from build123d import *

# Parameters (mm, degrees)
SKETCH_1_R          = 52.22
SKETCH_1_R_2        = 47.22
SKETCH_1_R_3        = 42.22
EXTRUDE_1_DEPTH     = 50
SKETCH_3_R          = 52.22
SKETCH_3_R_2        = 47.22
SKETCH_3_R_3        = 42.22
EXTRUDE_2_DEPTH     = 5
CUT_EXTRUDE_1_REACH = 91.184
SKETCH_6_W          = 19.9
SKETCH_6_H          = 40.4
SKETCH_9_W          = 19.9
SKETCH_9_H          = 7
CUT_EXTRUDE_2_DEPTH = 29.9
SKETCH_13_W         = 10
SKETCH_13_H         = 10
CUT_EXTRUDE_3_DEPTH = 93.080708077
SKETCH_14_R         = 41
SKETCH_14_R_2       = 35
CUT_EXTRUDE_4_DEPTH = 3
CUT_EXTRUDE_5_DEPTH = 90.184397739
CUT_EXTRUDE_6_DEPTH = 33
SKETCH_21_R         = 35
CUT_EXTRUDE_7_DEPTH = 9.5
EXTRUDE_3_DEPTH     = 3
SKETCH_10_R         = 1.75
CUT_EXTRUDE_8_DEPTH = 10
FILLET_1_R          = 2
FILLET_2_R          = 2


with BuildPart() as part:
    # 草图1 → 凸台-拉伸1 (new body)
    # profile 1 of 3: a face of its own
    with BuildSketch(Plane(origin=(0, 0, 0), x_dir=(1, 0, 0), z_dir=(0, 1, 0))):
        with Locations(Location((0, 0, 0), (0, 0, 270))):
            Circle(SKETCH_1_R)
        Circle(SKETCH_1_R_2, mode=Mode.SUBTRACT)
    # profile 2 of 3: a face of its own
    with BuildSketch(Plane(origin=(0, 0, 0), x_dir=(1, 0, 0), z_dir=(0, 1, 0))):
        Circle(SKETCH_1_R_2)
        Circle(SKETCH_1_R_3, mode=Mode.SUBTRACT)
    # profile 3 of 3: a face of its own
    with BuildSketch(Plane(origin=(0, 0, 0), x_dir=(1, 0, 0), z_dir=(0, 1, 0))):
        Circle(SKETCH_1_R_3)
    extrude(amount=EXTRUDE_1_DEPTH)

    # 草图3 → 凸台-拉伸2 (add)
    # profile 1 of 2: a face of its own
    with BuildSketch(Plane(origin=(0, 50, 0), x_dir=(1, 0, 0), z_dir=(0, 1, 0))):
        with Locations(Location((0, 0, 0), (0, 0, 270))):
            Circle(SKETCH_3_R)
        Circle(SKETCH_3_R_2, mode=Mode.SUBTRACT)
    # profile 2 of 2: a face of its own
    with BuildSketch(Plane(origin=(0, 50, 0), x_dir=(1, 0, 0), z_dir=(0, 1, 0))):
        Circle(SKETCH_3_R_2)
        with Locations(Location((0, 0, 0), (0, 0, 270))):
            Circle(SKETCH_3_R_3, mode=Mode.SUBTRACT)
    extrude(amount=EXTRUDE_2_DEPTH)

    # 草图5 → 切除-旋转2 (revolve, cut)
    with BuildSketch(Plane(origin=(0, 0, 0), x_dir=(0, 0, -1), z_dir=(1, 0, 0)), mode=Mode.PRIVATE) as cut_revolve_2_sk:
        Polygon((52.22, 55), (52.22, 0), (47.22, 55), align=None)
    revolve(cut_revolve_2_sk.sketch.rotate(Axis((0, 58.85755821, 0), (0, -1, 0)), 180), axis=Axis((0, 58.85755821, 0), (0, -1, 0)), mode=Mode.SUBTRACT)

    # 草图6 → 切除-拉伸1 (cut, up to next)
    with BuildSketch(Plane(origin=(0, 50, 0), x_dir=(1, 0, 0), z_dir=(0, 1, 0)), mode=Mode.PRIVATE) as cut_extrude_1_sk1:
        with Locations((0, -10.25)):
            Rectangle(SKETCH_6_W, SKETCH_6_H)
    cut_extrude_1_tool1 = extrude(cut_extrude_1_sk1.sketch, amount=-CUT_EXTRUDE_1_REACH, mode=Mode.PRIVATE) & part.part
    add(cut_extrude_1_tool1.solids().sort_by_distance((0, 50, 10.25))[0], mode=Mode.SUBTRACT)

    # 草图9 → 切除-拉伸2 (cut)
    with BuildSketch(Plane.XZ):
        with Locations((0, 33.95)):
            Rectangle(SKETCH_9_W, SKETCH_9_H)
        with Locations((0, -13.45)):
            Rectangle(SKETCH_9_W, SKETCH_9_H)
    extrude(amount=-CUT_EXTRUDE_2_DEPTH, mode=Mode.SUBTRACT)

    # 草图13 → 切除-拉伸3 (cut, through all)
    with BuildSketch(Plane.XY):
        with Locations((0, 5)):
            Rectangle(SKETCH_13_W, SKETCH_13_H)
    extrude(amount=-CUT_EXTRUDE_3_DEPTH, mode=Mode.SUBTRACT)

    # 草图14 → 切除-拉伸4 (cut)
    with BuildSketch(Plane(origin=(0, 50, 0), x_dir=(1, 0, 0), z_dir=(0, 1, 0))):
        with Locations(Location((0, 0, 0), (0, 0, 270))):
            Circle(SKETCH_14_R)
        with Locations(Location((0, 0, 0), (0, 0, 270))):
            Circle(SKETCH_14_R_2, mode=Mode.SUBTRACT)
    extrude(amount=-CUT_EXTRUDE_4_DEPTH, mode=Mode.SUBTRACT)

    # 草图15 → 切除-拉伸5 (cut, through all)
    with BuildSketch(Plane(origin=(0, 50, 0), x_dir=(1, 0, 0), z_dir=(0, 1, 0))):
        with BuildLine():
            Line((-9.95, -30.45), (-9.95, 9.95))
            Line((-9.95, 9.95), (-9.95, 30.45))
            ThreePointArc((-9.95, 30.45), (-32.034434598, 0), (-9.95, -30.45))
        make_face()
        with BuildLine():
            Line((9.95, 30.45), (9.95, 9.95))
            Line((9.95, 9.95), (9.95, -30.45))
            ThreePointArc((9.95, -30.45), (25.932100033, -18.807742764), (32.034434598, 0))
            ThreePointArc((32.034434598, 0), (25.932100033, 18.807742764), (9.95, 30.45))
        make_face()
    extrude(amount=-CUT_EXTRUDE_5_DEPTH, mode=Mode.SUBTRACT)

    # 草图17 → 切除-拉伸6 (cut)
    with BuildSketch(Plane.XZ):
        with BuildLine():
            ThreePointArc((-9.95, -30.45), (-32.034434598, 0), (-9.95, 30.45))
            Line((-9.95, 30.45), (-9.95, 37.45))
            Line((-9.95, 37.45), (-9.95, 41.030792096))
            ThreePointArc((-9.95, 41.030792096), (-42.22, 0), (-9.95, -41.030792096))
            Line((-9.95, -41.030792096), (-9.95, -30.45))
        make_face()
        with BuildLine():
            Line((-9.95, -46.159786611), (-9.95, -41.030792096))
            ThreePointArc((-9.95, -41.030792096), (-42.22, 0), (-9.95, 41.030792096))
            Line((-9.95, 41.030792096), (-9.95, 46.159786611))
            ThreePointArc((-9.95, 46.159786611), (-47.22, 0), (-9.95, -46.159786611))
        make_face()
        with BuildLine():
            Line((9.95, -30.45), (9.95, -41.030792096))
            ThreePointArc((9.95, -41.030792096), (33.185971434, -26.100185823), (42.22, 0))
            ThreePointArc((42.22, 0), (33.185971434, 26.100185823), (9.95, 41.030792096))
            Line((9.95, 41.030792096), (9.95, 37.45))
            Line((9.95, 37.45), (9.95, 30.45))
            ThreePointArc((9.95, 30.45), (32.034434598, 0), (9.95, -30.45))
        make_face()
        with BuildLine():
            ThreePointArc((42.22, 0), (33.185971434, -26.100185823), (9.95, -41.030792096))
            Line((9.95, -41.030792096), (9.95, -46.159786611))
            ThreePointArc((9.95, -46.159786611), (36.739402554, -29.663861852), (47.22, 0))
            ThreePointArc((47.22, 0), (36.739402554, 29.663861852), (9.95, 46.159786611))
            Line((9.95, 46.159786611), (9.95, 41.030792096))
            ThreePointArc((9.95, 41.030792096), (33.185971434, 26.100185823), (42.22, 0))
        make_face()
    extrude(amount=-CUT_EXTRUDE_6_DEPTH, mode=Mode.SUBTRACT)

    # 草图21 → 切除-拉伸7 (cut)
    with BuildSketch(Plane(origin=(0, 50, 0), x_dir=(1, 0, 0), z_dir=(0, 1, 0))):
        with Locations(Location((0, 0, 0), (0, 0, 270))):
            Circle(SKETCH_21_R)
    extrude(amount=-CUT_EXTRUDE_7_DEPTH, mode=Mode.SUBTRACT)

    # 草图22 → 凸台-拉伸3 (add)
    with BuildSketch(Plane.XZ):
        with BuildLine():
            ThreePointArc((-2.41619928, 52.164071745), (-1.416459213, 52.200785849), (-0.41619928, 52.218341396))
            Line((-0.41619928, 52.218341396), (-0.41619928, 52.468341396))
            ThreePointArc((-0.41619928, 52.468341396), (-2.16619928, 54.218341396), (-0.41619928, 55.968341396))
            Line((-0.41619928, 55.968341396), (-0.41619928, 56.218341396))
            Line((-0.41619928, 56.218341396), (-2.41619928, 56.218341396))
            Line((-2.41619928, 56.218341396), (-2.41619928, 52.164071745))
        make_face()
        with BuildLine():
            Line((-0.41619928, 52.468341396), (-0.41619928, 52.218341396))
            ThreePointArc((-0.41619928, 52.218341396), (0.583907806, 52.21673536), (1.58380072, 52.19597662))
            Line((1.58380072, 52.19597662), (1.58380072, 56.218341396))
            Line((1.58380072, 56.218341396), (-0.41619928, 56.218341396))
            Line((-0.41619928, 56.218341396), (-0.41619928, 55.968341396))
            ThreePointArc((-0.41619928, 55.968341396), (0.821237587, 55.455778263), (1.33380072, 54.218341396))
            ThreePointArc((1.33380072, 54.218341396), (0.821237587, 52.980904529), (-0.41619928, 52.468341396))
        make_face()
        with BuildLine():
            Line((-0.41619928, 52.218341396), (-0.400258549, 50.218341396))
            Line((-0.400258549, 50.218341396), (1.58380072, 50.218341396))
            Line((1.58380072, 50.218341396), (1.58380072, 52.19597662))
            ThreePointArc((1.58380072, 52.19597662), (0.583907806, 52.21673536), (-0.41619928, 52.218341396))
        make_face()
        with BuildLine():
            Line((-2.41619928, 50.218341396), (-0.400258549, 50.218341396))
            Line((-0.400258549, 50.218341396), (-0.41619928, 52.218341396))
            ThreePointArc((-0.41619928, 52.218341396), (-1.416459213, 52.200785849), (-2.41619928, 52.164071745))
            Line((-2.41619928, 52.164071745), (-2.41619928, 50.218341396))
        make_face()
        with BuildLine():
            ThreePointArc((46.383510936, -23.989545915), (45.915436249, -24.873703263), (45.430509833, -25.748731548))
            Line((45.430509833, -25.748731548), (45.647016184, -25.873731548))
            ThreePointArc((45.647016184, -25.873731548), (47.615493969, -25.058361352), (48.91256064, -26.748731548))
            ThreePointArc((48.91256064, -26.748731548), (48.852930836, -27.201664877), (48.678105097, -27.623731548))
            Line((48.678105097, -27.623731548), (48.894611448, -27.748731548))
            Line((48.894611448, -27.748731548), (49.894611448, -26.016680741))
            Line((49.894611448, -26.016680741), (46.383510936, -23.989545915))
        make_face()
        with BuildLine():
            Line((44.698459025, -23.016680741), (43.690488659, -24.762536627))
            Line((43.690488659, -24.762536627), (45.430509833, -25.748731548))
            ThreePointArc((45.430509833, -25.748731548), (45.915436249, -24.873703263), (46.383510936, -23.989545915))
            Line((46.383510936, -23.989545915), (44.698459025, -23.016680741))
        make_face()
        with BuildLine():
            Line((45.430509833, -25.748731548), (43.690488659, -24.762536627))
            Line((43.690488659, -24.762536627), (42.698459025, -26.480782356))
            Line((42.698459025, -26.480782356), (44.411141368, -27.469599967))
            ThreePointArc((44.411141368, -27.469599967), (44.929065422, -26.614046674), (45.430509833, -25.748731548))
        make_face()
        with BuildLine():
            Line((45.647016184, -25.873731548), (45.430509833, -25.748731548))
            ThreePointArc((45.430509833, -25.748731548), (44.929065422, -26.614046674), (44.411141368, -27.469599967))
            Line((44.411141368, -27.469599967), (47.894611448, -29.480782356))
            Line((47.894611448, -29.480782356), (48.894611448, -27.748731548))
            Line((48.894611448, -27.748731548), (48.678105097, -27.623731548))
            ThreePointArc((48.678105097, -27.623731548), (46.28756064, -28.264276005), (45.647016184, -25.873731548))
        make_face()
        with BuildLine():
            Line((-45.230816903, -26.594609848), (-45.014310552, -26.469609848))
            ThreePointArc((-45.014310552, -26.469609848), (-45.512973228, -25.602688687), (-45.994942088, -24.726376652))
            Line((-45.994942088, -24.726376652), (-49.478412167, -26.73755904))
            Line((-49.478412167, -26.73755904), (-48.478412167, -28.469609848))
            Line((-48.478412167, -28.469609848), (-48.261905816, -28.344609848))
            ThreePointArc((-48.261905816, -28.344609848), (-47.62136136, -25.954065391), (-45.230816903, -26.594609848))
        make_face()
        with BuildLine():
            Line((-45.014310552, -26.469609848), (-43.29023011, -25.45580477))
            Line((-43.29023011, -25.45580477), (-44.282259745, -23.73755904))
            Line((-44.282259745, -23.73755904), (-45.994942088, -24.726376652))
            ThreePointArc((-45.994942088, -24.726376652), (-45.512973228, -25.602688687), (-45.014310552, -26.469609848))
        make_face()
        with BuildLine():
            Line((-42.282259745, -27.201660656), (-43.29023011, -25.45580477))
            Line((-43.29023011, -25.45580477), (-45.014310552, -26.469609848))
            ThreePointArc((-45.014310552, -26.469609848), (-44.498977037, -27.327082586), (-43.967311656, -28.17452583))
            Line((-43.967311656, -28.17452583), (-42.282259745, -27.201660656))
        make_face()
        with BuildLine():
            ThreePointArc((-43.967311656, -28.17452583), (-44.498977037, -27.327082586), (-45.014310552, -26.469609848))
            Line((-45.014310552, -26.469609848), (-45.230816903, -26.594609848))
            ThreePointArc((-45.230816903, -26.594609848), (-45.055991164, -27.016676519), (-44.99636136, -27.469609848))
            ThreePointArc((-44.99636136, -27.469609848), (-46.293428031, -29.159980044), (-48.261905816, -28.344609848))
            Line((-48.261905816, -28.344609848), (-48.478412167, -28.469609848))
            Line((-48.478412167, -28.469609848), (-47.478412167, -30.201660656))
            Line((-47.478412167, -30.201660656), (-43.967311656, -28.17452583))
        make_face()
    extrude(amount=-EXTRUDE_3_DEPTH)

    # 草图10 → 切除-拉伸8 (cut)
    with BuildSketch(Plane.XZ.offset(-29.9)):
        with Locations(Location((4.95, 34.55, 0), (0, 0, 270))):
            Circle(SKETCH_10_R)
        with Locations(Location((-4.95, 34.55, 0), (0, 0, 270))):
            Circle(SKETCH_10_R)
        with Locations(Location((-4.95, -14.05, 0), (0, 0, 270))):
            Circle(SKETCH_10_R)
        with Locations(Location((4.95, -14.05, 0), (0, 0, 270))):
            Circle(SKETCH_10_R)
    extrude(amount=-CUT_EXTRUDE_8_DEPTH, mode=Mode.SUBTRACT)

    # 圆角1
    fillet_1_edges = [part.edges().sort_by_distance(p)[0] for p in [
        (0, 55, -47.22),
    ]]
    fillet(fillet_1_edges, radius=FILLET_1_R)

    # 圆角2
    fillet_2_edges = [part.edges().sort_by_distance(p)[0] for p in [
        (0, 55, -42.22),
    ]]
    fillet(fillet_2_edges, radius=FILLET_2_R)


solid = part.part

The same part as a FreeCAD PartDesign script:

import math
import FreeCAD as App
import Part
import Sketcher

V = App.Vector
Q = App.Units.Quantity


def edges_at(feature, points):
    """Names of the edges that pass closest to the given points."""
    edges = feature.Shape.Edges
    near = lambda p: min(range(len(edges)), key=lambda i: edges[i].distToShape(Part.Vertex(*p))[0])
    return sorted({f"Edge{near(p) + 1}" for p in points})


def add_polygon(sketch, points):
    """Adds a closed chain of lines whose ends are joined by coincident constraints."""
    first, n = sketch.GeometryCount, len(points)
    for a, b in zip(points, points[1:] + points[:1]):
        sketch.addGeometry(Part.LineSegment(App.Vector(*a, 0), App.Vector(*b, 0)), False)
    for i in range(n):
        sketch.addConstraint(Sketcher.Constraint("Coincident", first + i, 2, first + (i + 1) % n, 1))

doc = App.newDocument("Part")
body = doc.addObject("PartDesign::Body", "Body")

# Sketch on XZ plane
sketch1 = body.newObject("Sketcher::SketchObject", "Sketch")
sketch1.AttachmentSupport = (doc.getObject("XZ_Plane"), [""])
sketch1.MapMode = "FlatFace"
sketch1.addGeometry(Part.Circle(V(0, 0, 0), V(0, 0, 1), 52), False)
sketch1.addConstraint([
    Sketcher.Constraint("Coincident", 0, 3, -1, 1),
    Sketcher.Constraint("Diameter", 0, 104.44),
])
pad1 = body.newObject("PartDesign::Pad", "Pad")
pad1.Profile = sketch1
pad1.Length = 50
pad1.Reversed = True

# Sketch on XZ plane
sketch2 = body.newObject("Sketcher::SketchObject", "Sketch001")
sketch2.AttachmentSupport = (doc.getObject("XZ_Plane"), [""])
sketch2.MapMode = "FlatFace"
sketch2.AttachmentOffset = App.Placement(V(0, 0, -50), App.Rotation())
sketch2.addGeometry([
    Part.Circle(V(0, 0, 0), V(0, 0, 1), 52),
    Part.Circle(V(0, 0, 0), V(0, 0, 1), 42),
], False)
sketch2.addConstraint([
    Sketcher.Constraint("Coincident", 0, 3, -1, 1),
    Sketcher.Constraint("Coincident", 1, 3, -1, 1),
    Sketcher.Constraint("Diameter", 0, 104.44),
    Sketcher.Constraint("Diameter", 1, 84.44),
])
pad2 = body.newObject("PartDesign::Pad", "Pad001")
pad2.Profile = sketch2
pad2.Length = 5
pad2.Reversed = True

# Sketch on YZ plane
sketch3 = body.newObject("Sketcher::SketchObject", "Sketch002")
sketch3.AttachmentSupport = (doc.getObject("YZ_Plane"), [""])
sketch3.MapMode = "FlatFace"
add_polygon(sketch3, [(0, -52), (55, -52), (55, -47)])  # lines 0-2
sketch3.addConstraint([
    Sketcher.Constraint("Horizontal", 0),
    Sketcher.Constraint("Vertical", 1),
    Sketcher.Constraint("PointOnObject", 2, 2, -2),
    Sketcher.Constraint("DistanceX", 0, 1, 0, 2, 55.0),
    Sketcher.Constraint("DistanceY", 1, 1, 1, 2, 5.0),
    Sketcher.Constraint("DistanceY", 0, 2, -1, 1, 52.22),
])
groove = body.newObject("PartDesign::Groove", "Groove")
groove.Profile = sketch3
groove.ReferenceAxis = (sketch3, ["H_Axis"])
groove.Angle = 360

# Sketch on XZ plane
sketch4 = body.newObject("Sketcher::SketchObject", "Sketch003")
sketch4.AttachmentSupport = (doc.getObject("XZ_Plane"), [""])
sketch4.MapMode = "FlatFace"
sketch4.AttachmentOffset = App.Placement(V(0, 0, -50), App.Rotation())
add_polygon(sketch4, [(-10, -10), (-10, 30), (10, 30), (10, -10)])  # lines 0-3
sketch4.addConstraint([
    Sketcher.Constraint("Vertical", 0),
    Sketcher.Constraint("Horizontal", 1),
    Sketcher.Constraint("Vertical", 2),
    Sketcher.Constraint("Horizontal", 3),
    Sketcher.Constraint("DistanceX", 1, 1, 1, 2, 19.9),
    Sketcher.Constraint("DistanceY", 0, 1, 0, 2, 40.4),
    Sketcher.Constraint("DistanceX", 0, 2, -1, 1, 9.95),
    Sketcher.Constraint("DistanceY", -1, 1, 0, 2, 30.45),
])
pocket1 = body.newObject("PartDesign::Pocket", "Pocket")
pocket1.Profile = sketch4
pocket1.Type = "UpToFirst"
pocket1.Reversed = True

# Sketch on XZ plane
sketch5 = body.newObject("Sketcher::SketchObject", "Sketch004")
sketch5.AttachmentSupport = (doc.getObject("XZ_Plane"), [""])
sketch5.MapMode = "FlatFace"
add_polygon(sketch5, [(-10, 37), (-10, 30), (10, 30), (10, 37)])  # lines 0-3
add_polygon(sketch5, [(-10, -10), (-10, -17), (10, -17), (10, -10)])  # lines 4-7
sketch5.addConstraint([
    Sketcher.Constraint("Vertical", 0),
    Sketcher.Constraint("Horizontal", 1),
    Sketcher.Constraint("Vertical", 2),
    Sketcher.Constraint("Horizontal", 3),
    Sketcher.Constraint("Vertical", 4),
    Sketcher.Constraint("Horizontal", 5),
    Sketcher.Constraint("Vertical", 6),
    Sketcher.Constraint("Horizontal", 7),
    Sketcher.Constraint("Vertical", 3, 2, 4, 2),
    Sketcher.Constraint("Vertical", 2, 2, 5, 2),
    Sketcher.Constraint("Equal", 2, 4),
    Sketcher.Constraint("DistanceY", 0, 2, 0, 1, 7.0),
    Sketcher.Constraint("DistanceX", 1, 1, 1, 2, 19.9),
    Sketcher.Constraint("DistanceY", 4, 2, 0, 2, 47.4),
    Sketcher.Constraint("DistanceX", 0, 2, -1, 1, 9.95),
    Sketcher.Constraint("DistanceY", -1, 1, 0, 2, 30.45),
])
pocket2 = body.newObject("PartDesign::Pocket", "Pocket001")
pocket2.Profile = sketch5
pocket2.Length = 29.9

# Sketch on XY plane
sketch6 = body.newObject("Sketcher::SketchObject", "Sketch005")
sketch6.AttachmentSupport = (doc.getObject("XY_Plane"), [""])
sketch6.MapMode = "FlatFace"
add_polygon(sketch6, [(-5, 10), (-5, 0), (5, 0), (5, 10)])  # lines 0-3
sketch6.addConstraint([
    Sketcher.Constraint("Vertical", 0),
    Sketcher.Constraint("Horizontal", 1),
    Sketcher.Constraint("Vertical", 2),
    Sketcher.Constraint("Horizontal", 3),
    Sketcher.Constraint("Symmetric", 0, 2, 1, 2, -1, 1),
    Sketcher.Constraint("Equal", 3, 0),
    Sketcher.Constraint("DistanceX", 1, 1, 1, 2, 10.0),
])
pocket3 = body.newObject("PartDesign::Pocket", "Pocket002")
pocket3.Profile = sketch6
pocket3.Type = "ThroughAll"

# Sketch on XZ plane
sketch7 = body.newObject("Sketcher::SketchObject", "Sketch006")
sketch7.AttachmentSupport = (doc.getObject("XZ_Plane"), [""])
sketch7.MapMode = "FlatFace"
sketch7.AttachmentOffset = App.Placement(V(0, 0, -50), App.Rotation())
sketch7.addGeometry([
    Part.Circle(V(0, 0, 0), V(0, 0, 1), 41),
    Part.Circle(V(0, 0, 0), V(0, 0, 1), 35),
], False)
sketch7.addConstraint([
    Sketcher.Constraint("Coincident", 0, 3, -1, 1),
    Sketcher.Constraint("Coincident", 1, 3, -1, 1),
    Sketcher.Constraint("Diameter", 0, 82.0),
    Sketcher.Constraint("Diameter", 1, 70.0),
])
pocket4 = body.newObject("PartDesign::Pocket", "Pocket003")
pocket4.Profile = sketch7
pocket4.Length = 3
pocket4.Reversed = True

# Sketch on XZ plane
sketch8 = body.newObject("Sketcher::SketchObject", "Sketch007")
sketch8.AttachmentSupport = (doc.getObject("XZ_Plane"), [""])
sketch8.MapMode = "FlatFace"
sketch8.AttachmentOffset = App.Placement(V(0, 0, -50), App.Rotation())
sketch8.addGeometry([
    Part.LineSegment(V(-10, 30, 0), V(-10, -30, 0)),  # 0
    Part.ArcOfCircle(Part.Circle(V(0, 0, 0), V(0, 0, 1), 32), math.radians(108), math.radians(252)),  # 1
    Part.LineSegment(V(10, -30, 0), V(10, 30, 0)),  # 2
    Part.ArcOfCircle(Part.Circle(V(0, 0, 0), V(0, 0, 1), 32), math.radians(0), math.radians(72)),  # 3
    Part.ArcOfCircle(Part.Circle(V(0, 0, 0), V(0, 0, 1), 32), math.radians(-72), math.radians(0)),  # 4
], False)
sketch8.addConstraint([
    Sketcher.Constraint("Coincident", 0, 1, 1, 1),
    Sketcher.Constraint("Coincident", 1, 2, 0, 2),
    Sketcher.Constraint("Coincident", 2, 2, 3, 2),
    Sketcher.Constraint("Tangent", 3, 1, 4, 2),
    Sketcher.Constraint("Coincident", 4, 1, 2, 1),
    Sketcher.Constraint("Vertical", 0),
    Sketcher.Constraint("Vertical", 2),
    Sketcher.Constraint("Coincident", 1, 3, -1, 1),
    Sketcher.Constraint("Coincident", 3, 3, -1, 1),
    Sketcher.Constraint("Equal", 1, 3),
    Sketcher.Constraint("Equal", 3, 4),
    Sketcher.Constraint("PointOnObject", 3, 1, -1),
    Sketcher.Constraint("Horizontal", 0, 1, 2, 2),
    Sketcher.Constraint("DistanceY", 0, 2, 0, 1, 60.9),
    Sketcher.Constraint("DistanceX", 0, 1, 2, 2, 19.9),
])
pocket5 = body.newObject("PartDesign::Pocket", "Pocket004")
pocket5.Profile = sketch8
pocket5.Type = "ThroughAll"
pocket5.Reversed = True

# Sketch on XZ plane
sketch9 = body.newObject("Sketcher::SketchObject", "Sketch008")
sketch9.AttachmentSupport = (doc.getObject("XZ_Plane"), [""])
sketch9.MapMode = "FlatFace"
sketch9.addGeometry([
    Part.ArcOfCircle(Part.Circle(V(0, 0, 0), V(0, 0, 1), 32), math.radians(108), math.radians(252)),  # 0
    Part.LineSegment(V(-10, 30, 0), V(-10, 46, 0)),  # 1
    Part.ArcOfCircle(Part.Circle(V(0, 0, 0), V(0, 0, 1), 47), math.radians(102), math.radians(258)),  # 2
    Part.LineSegment(V(-10, -46, 0), V(-10, -30, 0)),  # 3
    Part.LineSegment(V(10, -30, 0), V(10, -46, 0)),  # 4
    Part.ArcOfCircle(Part.Circle(V(0, 0, 0), V(0, 0, 1), 47), math.radians(-78), math.radians(0)),  # 5
    Part.ArcOfCircle(Part.Circle(V(0, 0, 0), V(0, 0, 1), 47), math.radians(0), math.radians(78)),  # 6
    Part.LineSegment(V(10, 46, 0), V(10, 30, 0)),  # 7
    Part.ArcOfCircle(Part.Circle(V(0, 0, 0), V(0, 0, 1), 32), math.radians(-72), math.radians(72)),  # 8
], False)
sketch9.addConstraint([
    Sketcher.Constraint("Coincident", 0, 1, 1, 1),
    Sketcher.Constraint("Coincident", 1, 2, 2, 1),
    Sketcher.Constraint("Coincident", 2, 2, 3, 1),
    Sketcher.Constraint("Coincident", 3, 2, 0, 2),
    Sketcher.Constraint("Coincident", 4, 2, 5, 1),
    Sketcher.Constraint("Tangent", 5, 2, 6, 1),
    Sketcher.Constraint("Coincident", 6, 2, 7, 1),
    Sketcher.Constraint("Coincident", 7, 2, 8, 2),
    Sketcher.Constraint("Coincident", 8, 1, 4, 1),
    Sketcher.Constraint("Vertical", 1),
    Sketcher.Constraint("Vertical", 3),
    Sketcher.Constraint("Vertical", 4),
    Sketcher.Constraint("Vertical", 7),
    Sketcher.Constraint("Coincident", 0, 3, -1, 1),
    Sketcher.Constraint("Coincident", 2, 3, -1, 1),
    Sketcher.Constraint("Coincident", 5, 3, -1, 1),
    Sketcher.Constraint("Coincident", 8, 3, -1, 1),
    Sketcher.Constraint("Equal", 2, 5),
    Sketcher.Constraint("Equal", 5, 6),
    Sketcher.Constraint("Equal", 0, 8),
    Sketcher.Constraint("PointOnObject", 5, 2, -1),
    Sketcher.Constraint("Horizontal", 2, 2, 4, 2),
    Sketcher.Constraint("Horizontal", 1, 2, 6, 2),
    Sketcher.Constraint("Vertical", 1, 2, 2, 2),
    Sketcher.Constraint("Radius", 2, 47.22),
    Sketcher.Constraint("DistanceX", 2, 2, 4, 2, 19.9),
    Sketcher.Constraint("DistanceY", -1, 1, 0, 1, 30.45),
])
pocket6 = body.newObject("PartDesign::Pocket", "Pocket005")
pocket6.Profile = sketch9
pocket6.Length = 33

# Sketch on XZ plane
sketch10 = body.newObject("Sketcher::SketchObject", "Sketch009")
sketch10.AttachmentSupport = (doc.getObject("XZ_Plane"), [""])
sketch10.MapMode = "FlatFace"
sketch10.AttachmentOffset = App.Placement(V(0, 0, -50), App.Rotation())
sketch10.addGeometry(Part.Circle(V(0, 0, 0), V(0, 0, 1), 35), False)
sketch10.addConstraint([
    Sketcher.Constraint("Coincident", 0, 3, -1, 1),
    Sketcher.Constraint("Diameter", 0, 70.0),
])
pocket7 = body.newObject("PartDesign::Pocket", "Pocket006")
pocket7.Profile = sketch10
pocket7.Length = 9.5
pocket7.Reversed = True

# Sketch on XZ plane
sketch11 = body.newObject("Sketcher::SketchObject", "Sketch010")
sketch11.AttachmentSupport = (doc.getObject("XZ_Plane"), [""])
sketch11.MapMode = "FlatFace"
add_polygon(sketch11, [(1.6, 50.2), (1.6, 56.2), (-2.4, 56.2), (-2.4, 50.2)])  # lines 0-3
sketch11.addGeometry(Part.ArcOfCircle(Part.Circle(V(-0.4, 54.2, 0), V(0, 0, 1), 1.8), math.radians(90), math.radians(270)), False)  # 4
sketch11.addGeometry(Part.ArcOfCircle(Part.Circle(V(-0.4, 54.2, 0), V(0, 0, 1), 1.8), math.radians(0), math.radians(90)), False)  # 5
sketch11.addGeometry(Part.ArcOfCircle(Part.Circle(V(-0.4, 54.2, 0), V(0, 0, 1), 1.8), math.radians(-90), math.radians(0)), False)  # 6
add_polygon(sketch11, [(48.9, -27.7), (49.9, -26), (46.4, -24), (44.7, -23), (43.7, -24.8), (42.7, -26.5), (44.4, -27.5), (47.9, -29.5)])  # lines 7-14
sketch11.addGeometry(Part.ArcOfCircle(Part.Circle(V(47.2, -26.7, 0), V(0, 0, 1), 1.8), math.radians(0), math.radians(150)), False)  # 15
sketch11.addGeometry(Part.ArcOfCircle(Part.Circle(V(47.2, -26.7, 0), V(0, 0, 1), 1.8), math.radians(-30), math.radians(0)), False)  # 16
sketch11.addGeometry(Part.ArcOfCircle(Part.Circle(V(47.2, -26.7, 0), V(0, 0, 1), 1.8), math.radians(150), math.radians(330)), False)  # 17
add_polygon(sketch11, [(-44, -28.2), (-42.3, -27.2), (-43.3, -25.5), (-44.3, -23.7), (-46, -24.7), (-49.5, -26.7), (-47.5, -30.2)])  # lines 18-24
sketch11.addGeometry(Part.ArcOfCircle(Part.Circle(V(-46.7, -27.5, 0), V(0, 0, 1), 1.8), math.radians(30), math.radians(210)), False)  # 25
sketch11.addGeometry(Part.ArcOfCircle(Part.Circle(V(-46.7, -27.5, 0), V(0, 0, 1), 1.8), math.radians(0), math.radians(30)), False)  # 26
sketch11.addGeometry(Part.ArcOfCircle(Part.Circle(V(-46.7, -27.5, 0), V(0, 0, 1), 1.8), math.radians(-150), math.radians(0)), False)  # 27
sketch11.addConstraint([
    Sketcher.Constraint("Tangent", 4, 1, 5, 2),
    Sketcher.Constraint("Tangent", 5, 1, 6, 2),
    Sketcher.Constraint("Tangent", 6, 1, 4, 2),
    Sketcher.Constraint("Tangent", 15, 1, 16, 2),
    Sketcher.Constraint("Tangent", 16, 1, 17, 2),
    Sketcher.Constraint("Tangent", 17, 1, 15, 2),
    Sketcher.Constraint("Tangent", 25, 1, 26, 2),
    Sketcher.Constraint("Tangent", 26, 1, 27, 2),
    Sketcher.Constraint("Tangent", 27, 1, 25, 2),
    Sketcher.Constraint("Vertical", 0),
    Sketcher.Constraint("Horizontal", 1),
    Sketcher.Constraint("Vertical", 2),
    Sketcher.Constraint("Horizontal", 3),
    Sketcher.Constraint("Equal", 6, 15),
    Sketcher.Constraint("Equal", 17, 25),
    Sketcher.Constraint("Perpendicular", 7, 8),
    Sketcher.Constraint("Parallel", 8, 9),
    Sketcher.Constraint("Perpendicular", 9, 10),
    Sketcher.Constraint("Parallel", 10, 11),
    Sketcher.Constraint("Perpendicular", 11, 12),
    Sketcher.Constraint("Parallel", 12, 13),
    Sketcher.Constraint("Perpendicular", 13, 14),
    Sketcher.Constraint("Perpendicular", 18, 19),
    Sketcher.Constraint("Parallel", 19, 20),
    Sketcher.Constraint("Perpendicular", 20, 21),
    Sketcher.Constraint("Parallel", 21, 22),
    Sketcher.Constraint("Perpendicular", 22, 23),
    Sketcher.Constraint("Perpendicular", 23, 24),
    Sketcher.Constraint("Horizontal", 6, 3, 5, 1),
    Sketcher.Constraint("Horizontal", 17, 3, 15, 1),
    Sketcher.Constraint("Horizontal", 27, 3, 26, 1),
    Sketcher.Constraint("Vertical", 6, 3, 4, 1),
    Sketcher.Constraint("Vertical", 4, 1, 6, 1),
    Sketcher.Constraint("Equal", 7, 14),
    Sketcher.Constraint("Equal", 9, 18),
    Sketcher.Constraint("Equal", 10, 19),
    Sketcher.Constraint("Equal", 11, 20),
    Sketcher.Constraint("Equal", 12, 21),
    Sketcher.Constraint("Equal", 13, 22),
    Sketcher.Constraint("DistanceX", 1, 2, 1, 1, 4.0),
    Sketcher.Constraint("DistanceY", 0, 1, 0, 2, 6.0),
    Sketcher.Constraint("Angle", 7, Q("60 deg")),
    Sketcher.Constraint("Angle", 18, Q("30 deg")),
    Sketcher.Constraint("Radius", 4, 1.75),
    Sketcher.Constraint("Distance", 7, 2.0),
    Sketcher.Constraint("DistanceX", 4, 3, 0, 2, 2.0),
    Sketcher.Constraint("DistanceY", 4, 3, 0, 2, 2.0),
    Sketcher.Constraint("DistanceY", 7, 2, 9, 2, 3.0),
    Sketcher.Constraint("DistanceY", 14, 2, 17, 3, 1.0),
    Sketcher.Constraint("DistanceY", 14, 2, 16, 1, 0.125),
    Sketcher.Constraint("DistanceY", 16, 3, 17, 1, 0.875),
    Sketcher.Constraint("DistanceY", 25, 3, 25, 1, 0.875),
    Sketcher.Constraint("DistanceY", 27, 1, 26, 3, 0.875),
    Sketcher.Constraint("DistanceX", 4, 3, -1, 1, 0.416199),
    Sketcher.Constraint("DistanceY", 12, 2, -1, 1, 27.4696),
    Sketcher.Constraint("DistanceX", 8, 2, 7, 2, 3.511101),
    Sketcher.Constraint("DistanceX", 9, 2, 16, 3, 2.464102),
    Sketcher.Constraint("DistanceX", 25, 3, 18, 2, 4.464102),
    Sketcher.Constraint("Distance", 10, 2.015941),
    Sketcher.Constraint("DistanceY", -1, 1, 4, 3, 54.218341),
    Sketcher.Constraint("DistanceX", -1, 1, 15, 3, 47.162561),
    Sketcher.Constraint("DistanceY", 15, 3, -1, 1, 26.748732),
    Sketcher.Constraint("DistanceX", 25, 3, -1, 1, 46.746361),
    Sketcher.Constraint("DistanceY", 25, 3, -1, 1, 27.46961),
    Sketcher.Constraint("DistanceY", 18, 2, -1, 1, 27.201661),
])
pad3 = body.newObject("PartDesign::Pad", "Pad002")
pad3.Profile = sketch11
pad3.Length = 3
pad3.Reversed = True

# Sketch on XZ plane
sketch12 = body.newObject("Sketcher::SketchObject", "Sketch011")
sketch12.AttachmentSupport = (doc.getObject("XZ_Plane"), [""])
sketch12.MapMode = "FlatFace"
sketch12.AttachmentOffset = App.Placement(V(0, 0, -29.9), App.Rotation())
sketch12.addGeometry([
    Part.Circle(V(5, 34.5, 0), V(0, 0, 1), 1.8),
    Part.Circle(V(-5, 34.5, 0), V(0, 0, 1), 1.8),
    Part.Circle(V(-5, -14.1, 0), V(0, 0, 1), 1.8),
    Part.Circle(V(5, -14.1, 0), V(0, 0, 1), 1.8),
], False)
sketch12.addConstraint([
    Sketcher.Constraint("Equal", 0, 1),
    Sketcher.Constraint("Equal", 1, 2),
    Sketcher.Constraint("Equal", 2, 3),
    Sketcher.Constraint("Symmetric", 0, 3, 1, 3, -2),
    Sketcher.Constraint("Symmetric", 2, 3, 3, 3, -2),
    Sketcher.Constraint("Vertical", 1, 3, 2, 3),
    Sketcher.Constraint("Diameter", 0, 3.5),
    Sketcher.Constraint("DistanceX", 1, 3, 0, 3, 9.9),
    Sketcher.Constraint("DistanceY", 2, 3, 1, 3, 48.6),
    Sketcher.Constraint("DistanceY", -1, 1, 0, 3, 34.55),
])
pocket8 = body.newObject("PartDesign::Pocket", "Pocket007")
pocket8.Profile = sketch12
pocket8.Length = 10
doc.recompute()

fillet = body.newObject("PartDesign::Fillet", "Fillet")
fillet.Base = (pocket8, edges_at(pocket8, [(0, 55, -47.22)]))
fillet.Radius = 2
doc.recompute()

fillet2 = body.newObject("PartDesign::Fillet", "Fillet001")
fillet2.Base = (fillet, edges_at(fillet, [(0, 55, -42.22)]))
fillet2.Radius = 2

doc.recompute()
